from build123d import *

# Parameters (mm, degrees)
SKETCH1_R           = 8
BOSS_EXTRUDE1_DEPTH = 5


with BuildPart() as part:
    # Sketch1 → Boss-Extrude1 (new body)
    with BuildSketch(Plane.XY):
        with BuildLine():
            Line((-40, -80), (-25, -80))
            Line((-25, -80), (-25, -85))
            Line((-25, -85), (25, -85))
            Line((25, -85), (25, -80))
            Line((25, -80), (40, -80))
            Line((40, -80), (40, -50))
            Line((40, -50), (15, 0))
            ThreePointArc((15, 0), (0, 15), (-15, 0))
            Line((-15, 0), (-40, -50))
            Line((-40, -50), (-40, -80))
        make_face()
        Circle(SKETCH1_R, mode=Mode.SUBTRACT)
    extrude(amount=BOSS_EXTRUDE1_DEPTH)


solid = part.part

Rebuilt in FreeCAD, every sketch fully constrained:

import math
import FreeCAD as App
import Part
import Sketcher

V = App.Vector
Q = App.Units.Quantity

doc = App.newDocument("Part")
body = doc.addObject("PartDesign::Body", "Body")

sketch1 = body.newObject("Sketcher::SketchObject", "Sketch")
sketch1.AttachmentSupport = (doc.getObject("XY_Plane"), [""])
sketch1.MapMode = "FlatFace"
sketch1.addGeometry(Part.LineSegment(V(-40, -80, 0), V(-25, -80, 0)), False)
sketch1.addGeometry(Part.LineSegment(V(-25, -80, 0), V(-25, -85, 0)), False)
sketch1.addGeometry(Part.LineSegment(V(-25, -85, 0), V(25, -85, 0)), False)
sketch1.addGeometry(Part.LineSegment(V(25, -85, 0), V(25, -80, 0)), False)
sketch1.addGeometry(Part.LineSegment(V(25, -80, 0), V(40, -80, 0)), False)
sketch1.addGeometry(Part.LineSegment(V(40, -80, 0), V(40, -50, 0)), False)
sketch1.addGeometry(Part.LineSegment(V(40, -50, 0), V(15, 0, 0)), False)
sketch1.addGeometry(Part.ArcOfCircle(Part.Circle(V(0, 0, 0), V(0, 0, 1), 15), math.radians(0), math.radians(180)), False)
sketch1.addGeometry(Part.LineSegment(V(-15, 0, 0), V(-40, -50, 0)), False)
sketch1.addGeometry(Part.LineSegment(V(-40, -50, 0), V(-40, -80, 0)), False)
sketch1.addGeometry(Part.Circle(V(0, 0, 0), V(0, 0, 1), 8), False)
sketch1.addConstraint(Sketcher.Constraint("Coincident", 0, 2, 1, 1))
sketch1.addConstraint(Sketcher.Constraint("Coincident", 1, 2, 2, 1))
sketch1.addConstraint(Sketcher.Constraint("Coincident", 2, 2, 3, 1))
sketch1.addConstraint(Sketcher.Constraint("Coincident", 3, 2, 4, 1))
sketch1.addConstraint(Sketcher.Constraint("Coincident", 4, 2, 5, 1))
sketch1.addConstraint(Sketcher.Constraint("Coincident", 5, 2, 6, 1))
sketch1.addConstraint(Sketcher.Constraint("Coincident", 6, 2, 7, 1))
sketch1.addConstraint(Sketcher.Constraint("Coincident", 7, 2, 8, 1))
sketch1.addConstraint(Sketcher.Constraint("Coincident", 8, 2, 9, 1))
sketch1.addConstraint(Sketcher.Constraint("Coincident", 9, 2, 0, 1))
sketch1.addConstraint(Sketcher.Constraint("Horizontal", 0))
sketch1.addConstraint(Sketcher.Constraint("Vertical", 1))
sketch1.addConstraint(Sketcher.Constraint("Horizontal", 2))
sketch1.addConstraint(Sketcher.Constraint("Vertical", 3))
sketch1.addConstraint(Sketcher.Constraint("Horizontal", 4))
sketch1.addConstraint(Sketcher.Constraint("Vertical", 5))
sketch1.addConstraint(Sketcher.Constraint("Vertical", 9))
sketch1.addConstraint(Sketcher.Constraint("Coincident", 7, 3, -1, 1))
sketch1.addConstraint(Sketcher.Constraint("Coincident", 10, 3, -1, 1))
sketch1.addConstraint(Sketcher.Constraint("Symmetric", 0, 2, 3, 2, -2))
sketch1.addConstraint(Sketcher.Constraint("Symmetric", 5, 2, 8, 2, -2))
sketch1.addConstraint(Sketcher.Constraint("PointOnObject", 6, 2, -1))
sketch1.addConstraint(Sketcher.Constraint("PointOnObject", 7, 2, -1))
sketch1.addConstraint(Sketcher.Constraint("Diameter", 10, Q("16 mm")))
sketch1.addConstraint(Sketcher.Constraint("Radius", 7, Q("15 mm")))
sketch1.addConstraint(Sketcher.Constraint("DistanceX", 0, 1, 0, 2, Q("15 mm")))
sketch1.addConstraint(Sketcher.Constraint("DistanceX", 2, 1, 2, 2, Q("50 mm")))
sketch1.addConstraint(Sketcher.Constraint("DistanceY", 1, 2, 1, 1, Q("5 mm")))
sketch1.addConstraint(Sketcher.Constraint("DistanceY", 5, 1, 5, 2, Q("30 mm")))
sketch1.addConstraint(Sketcher.Constraint("DistanceY", 0, 2, -1, 1, Q("80 mm")))
pad1 = body.newObject("PartDesign::Pad", "Pad")
pad1.Profile = sketch1
pad1.Length = 5

doc.recompute()
